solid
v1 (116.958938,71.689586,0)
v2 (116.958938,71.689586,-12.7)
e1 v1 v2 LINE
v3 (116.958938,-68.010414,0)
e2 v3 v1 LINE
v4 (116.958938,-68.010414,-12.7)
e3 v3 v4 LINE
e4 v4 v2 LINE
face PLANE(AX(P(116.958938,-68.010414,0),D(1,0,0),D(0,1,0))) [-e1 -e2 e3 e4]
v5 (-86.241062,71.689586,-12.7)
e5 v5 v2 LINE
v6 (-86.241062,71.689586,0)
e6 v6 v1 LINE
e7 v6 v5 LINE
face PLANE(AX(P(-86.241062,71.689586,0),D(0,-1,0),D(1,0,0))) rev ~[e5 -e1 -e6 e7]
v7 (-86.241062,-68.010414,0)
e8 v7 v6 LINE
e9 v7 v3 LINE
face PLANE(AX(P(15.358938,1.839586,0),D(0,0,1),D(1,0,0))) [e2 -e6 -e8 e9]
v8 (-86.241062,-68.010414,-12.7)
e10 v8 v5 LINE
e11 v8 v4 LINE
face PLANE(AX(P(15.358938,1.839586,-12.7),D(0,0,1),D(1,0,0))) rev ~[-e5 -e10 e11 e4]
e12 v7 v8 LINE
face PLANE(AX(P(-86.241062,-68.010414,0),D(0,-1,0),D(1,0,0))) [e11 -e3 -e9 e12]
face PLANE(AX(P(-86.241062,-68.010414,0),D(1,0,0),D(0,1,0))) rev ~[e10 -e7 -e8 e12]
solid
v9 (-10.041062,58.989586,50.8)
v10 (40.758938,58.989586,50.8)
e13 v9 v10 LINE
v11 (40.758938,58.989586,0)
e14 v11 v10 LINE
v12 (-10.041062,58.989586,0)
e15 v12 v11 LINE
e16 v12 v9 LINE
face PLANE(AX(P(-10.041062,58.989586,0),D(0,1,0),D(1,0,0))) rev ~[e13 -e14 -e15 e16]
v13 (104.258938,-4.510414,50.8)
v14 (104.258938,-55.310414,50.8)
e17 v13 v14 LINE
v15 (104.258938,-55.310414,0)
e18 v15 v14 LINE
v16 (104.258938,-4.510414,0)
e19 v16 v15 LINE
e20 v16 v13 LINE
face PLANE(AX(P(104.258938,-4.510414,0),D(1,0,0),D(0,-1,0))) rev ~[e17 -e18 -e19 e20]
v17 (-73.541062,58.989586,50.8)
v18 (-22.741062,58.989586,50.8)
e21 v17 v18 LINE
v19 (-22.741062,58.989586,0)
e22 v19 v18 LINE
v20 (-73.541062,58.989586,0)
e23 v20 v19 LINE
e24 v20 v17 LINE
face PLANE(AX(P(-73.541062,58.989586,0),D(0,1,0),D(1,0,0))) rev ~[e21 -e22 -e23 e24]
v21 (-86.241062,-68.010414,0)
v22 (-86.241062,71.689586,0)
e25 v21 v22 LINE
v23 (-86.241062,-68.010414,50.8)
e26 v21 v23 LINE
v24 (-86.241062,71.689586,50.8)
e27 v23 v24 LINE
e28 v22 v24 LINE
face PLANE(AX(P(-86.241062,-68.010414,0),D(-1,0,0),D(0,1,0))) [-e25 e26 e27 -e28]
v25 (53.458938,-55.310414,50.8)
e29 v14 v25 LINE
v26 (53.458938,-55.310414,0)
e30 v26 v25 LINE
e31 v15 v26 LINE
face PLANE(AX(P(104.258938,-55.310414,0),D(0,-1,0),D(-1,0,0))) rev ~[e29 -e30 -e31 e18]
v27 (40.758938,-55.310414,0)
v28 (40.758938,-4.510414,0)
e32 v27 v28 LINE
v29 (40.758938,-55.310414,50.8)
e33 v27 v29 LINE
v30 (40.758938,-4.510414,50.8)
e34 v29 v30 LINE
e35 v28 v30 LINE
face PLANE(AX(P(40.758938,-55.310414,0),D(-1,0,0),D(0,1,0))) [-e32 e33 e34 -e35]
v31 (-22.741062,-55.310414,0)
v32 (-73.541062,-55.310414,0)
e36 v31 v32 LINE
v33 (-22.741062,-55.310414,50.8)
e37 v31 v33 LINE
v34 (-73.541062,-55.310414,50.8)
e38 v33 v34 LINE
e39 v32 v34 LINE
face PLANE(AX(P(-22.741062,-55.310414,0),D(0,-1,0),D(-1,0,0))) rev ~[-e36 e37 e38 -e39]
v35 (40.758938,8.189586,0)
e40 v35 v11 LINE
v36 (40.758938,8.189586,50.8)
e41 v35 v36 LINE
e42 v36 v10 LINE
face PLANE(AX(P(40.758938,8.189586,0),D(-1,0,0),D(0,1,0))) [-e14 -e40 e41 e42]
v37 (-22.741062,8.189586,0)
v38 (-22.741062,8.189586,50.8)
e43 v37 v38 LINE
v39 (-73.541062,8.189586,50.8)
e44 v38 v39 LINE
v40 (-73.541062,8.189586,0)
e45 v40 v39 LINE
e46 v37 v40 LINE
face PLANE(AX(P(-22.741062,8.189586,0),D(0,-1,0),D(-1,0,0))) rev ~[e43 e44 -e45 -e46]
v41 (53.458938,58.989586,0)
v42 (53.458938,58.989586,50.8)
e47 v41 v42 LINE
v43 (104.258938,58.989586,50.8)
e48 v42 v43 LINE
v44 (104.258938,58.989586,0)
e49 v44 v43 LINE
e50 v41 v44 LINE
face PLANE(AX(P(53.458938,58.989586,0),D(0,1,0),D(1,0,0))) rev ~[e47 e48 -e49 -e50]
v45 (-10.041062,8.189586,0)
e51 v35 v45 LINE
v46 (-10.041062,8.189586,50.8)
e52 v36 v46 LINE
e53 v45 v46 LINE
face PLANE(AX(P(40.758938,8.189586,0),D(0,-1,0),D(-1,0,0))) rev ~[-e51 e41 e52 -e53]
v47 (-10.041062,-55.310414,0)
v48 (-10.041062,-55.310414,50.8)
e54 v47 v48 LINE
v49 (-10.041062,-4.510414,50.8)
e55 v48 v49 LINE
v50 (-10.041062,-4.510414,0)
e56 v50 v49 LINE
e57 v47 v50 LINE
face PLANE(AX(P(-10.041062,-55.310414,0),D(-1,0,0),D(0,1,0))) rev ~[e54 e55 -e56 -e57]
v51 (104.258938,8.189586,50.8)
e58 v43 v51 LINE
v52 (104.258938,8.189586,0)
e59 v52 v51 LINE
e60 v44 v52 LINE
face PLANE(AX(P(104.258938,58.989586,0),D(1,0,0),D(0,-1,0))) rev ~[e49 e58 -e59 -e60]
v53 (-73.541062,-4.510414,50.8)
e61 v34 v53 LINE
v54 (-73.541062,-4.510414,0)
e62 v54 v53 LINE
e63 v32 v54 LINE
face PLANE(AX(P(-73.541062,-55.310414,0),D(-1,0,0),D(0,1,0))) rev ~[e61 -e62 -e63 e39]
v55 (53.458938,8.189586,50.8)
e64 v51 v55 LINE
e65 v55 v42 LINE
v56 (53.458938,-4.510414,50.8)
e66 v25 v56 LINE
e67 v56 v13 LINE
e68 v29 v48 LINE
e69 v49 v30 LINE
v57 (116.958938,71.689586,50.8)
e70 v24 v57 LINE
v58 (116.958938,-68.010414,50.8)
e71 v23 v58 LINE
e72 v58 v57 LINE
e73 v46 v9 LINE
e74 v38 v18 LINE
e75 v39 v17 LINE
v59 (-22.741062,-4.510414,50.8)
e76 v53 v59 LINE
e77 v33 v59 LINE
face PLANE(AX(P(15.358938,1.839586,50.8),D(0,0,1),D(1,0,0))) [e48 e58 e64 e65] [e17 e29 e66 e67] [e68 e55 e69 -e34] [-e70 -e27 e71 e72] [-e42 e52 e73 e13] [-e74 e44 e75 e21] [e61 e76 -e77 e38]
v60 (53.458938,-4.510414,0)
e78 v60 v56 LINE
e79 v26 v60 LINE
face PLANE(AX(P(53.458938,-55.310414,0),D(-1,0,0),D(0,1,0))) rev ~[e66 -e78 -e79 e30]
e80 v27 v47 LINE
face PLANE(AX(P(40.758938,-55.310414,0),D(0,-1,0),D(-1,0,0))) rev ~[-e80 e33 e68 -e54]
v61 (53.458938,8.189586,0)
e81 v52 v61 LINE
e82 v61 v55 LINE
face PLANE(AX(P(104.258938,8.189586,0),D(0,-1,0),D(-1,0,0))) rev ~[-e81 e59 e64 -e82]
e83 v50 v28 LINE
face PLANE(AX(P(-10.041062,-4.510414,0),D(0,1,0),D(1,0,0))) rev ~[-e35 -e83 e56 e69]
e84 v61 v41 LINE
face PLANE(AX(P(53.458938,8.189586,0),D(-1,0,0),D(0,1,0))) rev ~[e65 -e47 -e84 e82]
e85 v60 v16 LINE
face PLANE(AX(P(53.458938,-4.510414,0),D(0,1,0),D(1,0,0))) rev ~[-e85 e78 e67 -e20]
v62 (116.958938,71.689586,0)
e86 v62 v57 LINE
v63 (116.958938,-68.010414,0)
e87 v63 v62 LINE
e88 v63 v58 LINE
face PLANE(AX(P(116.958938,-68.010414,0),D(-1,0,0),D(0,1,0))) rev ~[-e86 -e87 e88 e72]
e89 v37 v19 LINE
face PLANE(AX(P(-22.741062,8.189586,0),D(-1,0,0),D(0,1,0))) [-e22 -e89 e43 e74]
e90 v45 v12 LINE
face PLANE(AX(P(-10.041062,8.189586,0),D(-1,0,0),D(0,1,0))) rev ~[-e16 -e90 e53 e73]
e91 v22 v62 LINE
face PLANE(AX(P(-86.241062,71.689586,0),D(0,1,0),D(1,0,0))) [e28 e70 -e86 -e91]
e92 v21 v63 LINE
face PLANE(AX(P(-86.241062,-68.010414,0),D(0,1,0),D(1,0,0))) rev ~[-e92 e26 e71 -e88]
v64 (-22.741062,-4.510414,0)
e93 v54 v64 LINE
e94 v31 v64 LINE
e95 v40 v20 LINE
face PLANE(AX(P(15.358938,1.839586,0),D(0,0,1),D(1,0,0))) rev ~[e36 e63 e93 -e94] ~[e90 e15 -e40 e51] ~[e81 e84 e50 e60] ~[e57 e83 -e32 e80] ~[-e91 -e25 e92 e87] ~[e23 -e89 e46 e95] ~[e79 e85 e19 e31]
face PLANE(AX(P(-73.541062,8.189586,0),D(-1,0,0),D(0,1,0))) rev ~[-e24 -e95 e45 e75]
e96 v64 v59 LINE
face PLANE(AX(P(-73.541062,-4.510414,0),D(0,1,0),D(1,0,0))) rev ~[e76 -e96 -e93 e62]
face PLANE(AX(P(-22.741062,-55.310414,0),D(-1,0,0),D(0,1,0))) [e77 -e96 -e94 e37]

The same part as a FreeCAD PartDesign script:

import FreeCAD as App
import Part
import Sketcher
Q = App.Units.Quantity


def add_polygon(sketch, points):
    """Adds a closed chain of lines whose ends are joined by coincident constraints."""
    first, n = sketch.GeometryCount, len(points)
    for a, b in zip(points, points[1:] + points[:1]):
        sketch.addGeometry(Part.LineSegment(App.Vector(*a, 0), App.Vector(*b, 0)), False)
    for i in range(n):
        sketch.addConstraint(Sketcher.Constraint("Coincident", first + i, 2, first + (i + 1) % n, 1))

doc = App.newDocument("Part")
body = doc.addObject("PartDesign::Body", "Body")

# Sketch on XY plane
sketch1 = body.newObject("Sketcher::SketchObject", "Sketch")
sketch1.AttachmentSupport = (doc.getObject("XY_Plane"), [""])
sketch1.MapMode = "FlatFace"
add_polygon(sketch1, [(-86, 72), (-86, -68), (117, -68), (117, 72)])  # lines 0-3
add_polygon(sketch1, [(104, -55), (53, -55), (53, -5), (104, -5)])  # lines 4-7
add_polygon(sketch1, [(41, -55), (-10, -55), (-10, -5), (41, -5)])  # lines 8-11
add_polygon(sketch1, [(-23, -55), (-74, -55), (-74, -5), (-23, -5)])  # lines 12-15
add_polygon(sketch1, [(-74, 8), (-74, 59), (-23, 59), (-23, 8)])  # lines 16-19
add_polygon(sketch1, [(-10, 59), (41, 59), (41, 8), (-10, 8)])  # lines 20-23
add_polygon(sketch1, [(53, 59), (104, 59), (104, 8), (53, 8)])  # lines 24-27
sketch1.addConstraint([
    Sketcher.Constraint("Vertical", 0),
    Sketcher.Constraint("Horizontal", 1),
    Sketcher.Constraint("Vertical", 2),
    Sketcher.Constraint("Horizontal", 3),
    Sketcher.Constraint("Horizontal", 4),
    Sketcher.Constraint("Vertical", 5),
    Sketcher.Constraint("Horizontal", 6),
    Sketcher.Constraint("Vertical", 7),
    Sketcher.Constraint("Horizontal", 8),
    Sketcher.Constraint("Vertical", 9),
    Sketcher.Constraint("Horizontal", 10),
    Sketcher.Constraint("Vertical", 11),
    Sketcher.Constraint("Horizontal", 12),
    Sketcher.Constraint("Vertical", 13),
    Sketcher.Constraint("Horizontal", 14),
    Sketcher.Constraint("Vertical", 15),
    Sketcher.Constraint("Vertical", 16),
    Sketcher.Constraint("Horizontal", 17),
    Sketcher.Constraint("Vertical", 18),
    Sketcher.Constraint("Horizontal", 19),
    Sketcher.Constraint("Horizontal", 20),
    Sketcher.Constraint("Vertical", 21),
    Sketcher.Constraint("Horizontal", 22),
    Sketcher.Constraint("Vertical", 23),
    Sketcher.Constraint("Horizontal", 24),
    Sketcher.Constraint("Vertical", 25),
    Sketcher.Constraint("Horizontal", 26),
    Sketcher.Constraint("Vertical", 27),
    Sketcher.Constraint("Horizontal", 7, 2, 8, 2),
    Sketcher.Constraint("Horizontal", 6, 2, 9, 2),
    Sketcher.Constraint("Horizontal", 11, 2, 12, 2),
    Sketcher.Constraint("Horizontal", 10, 2, 13, 2),
    Sketcher.Constraint("Horizontal", 17, 2, 20, 2),
    Sketcher.Constraint("Horizontal", 19, 2, 21, 2),
    Sketcher.Constraint("Horizontal", 23, 2, 24, 2),
    Sketcher.Constraint("Horizontal", 22, 2, 25, 2),
    Sketcher.Constraint("Vertical", 13, 2, 16, 2),
    Sketcher.Constraint("Vertical", 15, 2, 17, 2),
    Sketcher.Constraint("Vertical", 11, 2, 20, 2),
    Sketcher.Constraint("Vertical", 9, 2, 22, 2),
    Sketcher.Constraint("Vertical", 7, 2, 24, 2),
    Sketcher.Constraint("Vertical", 5, 2, 26, 2),
    Sketcher.Constraint("Equal", 6, 8),
    Sketcher.Constraint("Equal", 10, 12),
    Sketcher.Constraint("Equal", 26, 5),
    Sketcher.Constraint("Equal", 15, 16),
    Sketcher.Constraint("DistanceX", 1, 1, 1, 2, Q("8 in")),
    Sketcher.Constraint("DistanceX", 4, 2, 4, 1, Q("2 in")),
    Sketcher.Constraint("DistanceY", 0, 2, 0, 1, Q("5.5 in")),
    Sketcher.Constraint("DistanceY", 4, 2, 2, 2, Q("5 in")),
    Sketcher.Constraint("DistanceX", 0, 2, 8, 2, Q("3 in")),
    Sketcher.Constraint("DistanceX", 4, 2, 1, 2, Q("2.5 in")),
    Sketcher.Constraint("DistanceX", 0, 2, 12, 2, Q("0.5 in")),
    Sketcher.Constraint("DistanceY", 16, 2, 3, 2, Q("0.5 in")),
    Sketcher.Constraint("DistanceX", 0, 2, -1, 1, Q("86.241062 mm")),
    Sketcher.Constraint("DistanceY", 0, 2, -1, 1, Q("68.010414 mm")),
])
pad1 = body.newObject("PartDesign::Pad", "Pad")
pad1.Profile = sketch1
pad1.Length = Q("2 in")
body2 = doc.addObject("PartDesign::Body", "Body001")

# Sketch on XY plane
sketch2 = body2.newObject("Sketcher::SketchObject", "Sketch001")
sketch2.AttachmentSupport = (doc.getObject("XY_Plane001"), [""])
sketch2.MapMode = "FlatFace"
add_polygon(sketch2, [(-86, 72), (-86, -68), (117, -68), (117, 72)])  # lines 0-3
sketch2.addConstraint([
    Sketcher.Constraint("Vertical", 0),
    Sketcher.Constraint("Horizontal", 1),
    Sketcher.Constraint("Vertical", 2),
    Sketcher.Constraint("Horizontal", 3),
    Sketcher.Constraint("DistanceX", 1, 1, 1, 2, Q("8 in")),
    Sketcher.Constraint("DistanceY", 0, 2, 0, 1, Q("5.5 in")),
    Sketcher.Constraint("DistanceX", 0, 2, -1, 1, Q("86.241062 mm")),
    Sketcher.Constraint("DistanceY", 0, 2, -1, 1, Q("68.010414 mm")),
])
pad2 = body2.newObject("PartDesign::Pad", "Pad001")
pad2.Profile = sketch2
pad2.Length = Q("0.5 in")
pad2.Reversed = True

doc.recompute()
